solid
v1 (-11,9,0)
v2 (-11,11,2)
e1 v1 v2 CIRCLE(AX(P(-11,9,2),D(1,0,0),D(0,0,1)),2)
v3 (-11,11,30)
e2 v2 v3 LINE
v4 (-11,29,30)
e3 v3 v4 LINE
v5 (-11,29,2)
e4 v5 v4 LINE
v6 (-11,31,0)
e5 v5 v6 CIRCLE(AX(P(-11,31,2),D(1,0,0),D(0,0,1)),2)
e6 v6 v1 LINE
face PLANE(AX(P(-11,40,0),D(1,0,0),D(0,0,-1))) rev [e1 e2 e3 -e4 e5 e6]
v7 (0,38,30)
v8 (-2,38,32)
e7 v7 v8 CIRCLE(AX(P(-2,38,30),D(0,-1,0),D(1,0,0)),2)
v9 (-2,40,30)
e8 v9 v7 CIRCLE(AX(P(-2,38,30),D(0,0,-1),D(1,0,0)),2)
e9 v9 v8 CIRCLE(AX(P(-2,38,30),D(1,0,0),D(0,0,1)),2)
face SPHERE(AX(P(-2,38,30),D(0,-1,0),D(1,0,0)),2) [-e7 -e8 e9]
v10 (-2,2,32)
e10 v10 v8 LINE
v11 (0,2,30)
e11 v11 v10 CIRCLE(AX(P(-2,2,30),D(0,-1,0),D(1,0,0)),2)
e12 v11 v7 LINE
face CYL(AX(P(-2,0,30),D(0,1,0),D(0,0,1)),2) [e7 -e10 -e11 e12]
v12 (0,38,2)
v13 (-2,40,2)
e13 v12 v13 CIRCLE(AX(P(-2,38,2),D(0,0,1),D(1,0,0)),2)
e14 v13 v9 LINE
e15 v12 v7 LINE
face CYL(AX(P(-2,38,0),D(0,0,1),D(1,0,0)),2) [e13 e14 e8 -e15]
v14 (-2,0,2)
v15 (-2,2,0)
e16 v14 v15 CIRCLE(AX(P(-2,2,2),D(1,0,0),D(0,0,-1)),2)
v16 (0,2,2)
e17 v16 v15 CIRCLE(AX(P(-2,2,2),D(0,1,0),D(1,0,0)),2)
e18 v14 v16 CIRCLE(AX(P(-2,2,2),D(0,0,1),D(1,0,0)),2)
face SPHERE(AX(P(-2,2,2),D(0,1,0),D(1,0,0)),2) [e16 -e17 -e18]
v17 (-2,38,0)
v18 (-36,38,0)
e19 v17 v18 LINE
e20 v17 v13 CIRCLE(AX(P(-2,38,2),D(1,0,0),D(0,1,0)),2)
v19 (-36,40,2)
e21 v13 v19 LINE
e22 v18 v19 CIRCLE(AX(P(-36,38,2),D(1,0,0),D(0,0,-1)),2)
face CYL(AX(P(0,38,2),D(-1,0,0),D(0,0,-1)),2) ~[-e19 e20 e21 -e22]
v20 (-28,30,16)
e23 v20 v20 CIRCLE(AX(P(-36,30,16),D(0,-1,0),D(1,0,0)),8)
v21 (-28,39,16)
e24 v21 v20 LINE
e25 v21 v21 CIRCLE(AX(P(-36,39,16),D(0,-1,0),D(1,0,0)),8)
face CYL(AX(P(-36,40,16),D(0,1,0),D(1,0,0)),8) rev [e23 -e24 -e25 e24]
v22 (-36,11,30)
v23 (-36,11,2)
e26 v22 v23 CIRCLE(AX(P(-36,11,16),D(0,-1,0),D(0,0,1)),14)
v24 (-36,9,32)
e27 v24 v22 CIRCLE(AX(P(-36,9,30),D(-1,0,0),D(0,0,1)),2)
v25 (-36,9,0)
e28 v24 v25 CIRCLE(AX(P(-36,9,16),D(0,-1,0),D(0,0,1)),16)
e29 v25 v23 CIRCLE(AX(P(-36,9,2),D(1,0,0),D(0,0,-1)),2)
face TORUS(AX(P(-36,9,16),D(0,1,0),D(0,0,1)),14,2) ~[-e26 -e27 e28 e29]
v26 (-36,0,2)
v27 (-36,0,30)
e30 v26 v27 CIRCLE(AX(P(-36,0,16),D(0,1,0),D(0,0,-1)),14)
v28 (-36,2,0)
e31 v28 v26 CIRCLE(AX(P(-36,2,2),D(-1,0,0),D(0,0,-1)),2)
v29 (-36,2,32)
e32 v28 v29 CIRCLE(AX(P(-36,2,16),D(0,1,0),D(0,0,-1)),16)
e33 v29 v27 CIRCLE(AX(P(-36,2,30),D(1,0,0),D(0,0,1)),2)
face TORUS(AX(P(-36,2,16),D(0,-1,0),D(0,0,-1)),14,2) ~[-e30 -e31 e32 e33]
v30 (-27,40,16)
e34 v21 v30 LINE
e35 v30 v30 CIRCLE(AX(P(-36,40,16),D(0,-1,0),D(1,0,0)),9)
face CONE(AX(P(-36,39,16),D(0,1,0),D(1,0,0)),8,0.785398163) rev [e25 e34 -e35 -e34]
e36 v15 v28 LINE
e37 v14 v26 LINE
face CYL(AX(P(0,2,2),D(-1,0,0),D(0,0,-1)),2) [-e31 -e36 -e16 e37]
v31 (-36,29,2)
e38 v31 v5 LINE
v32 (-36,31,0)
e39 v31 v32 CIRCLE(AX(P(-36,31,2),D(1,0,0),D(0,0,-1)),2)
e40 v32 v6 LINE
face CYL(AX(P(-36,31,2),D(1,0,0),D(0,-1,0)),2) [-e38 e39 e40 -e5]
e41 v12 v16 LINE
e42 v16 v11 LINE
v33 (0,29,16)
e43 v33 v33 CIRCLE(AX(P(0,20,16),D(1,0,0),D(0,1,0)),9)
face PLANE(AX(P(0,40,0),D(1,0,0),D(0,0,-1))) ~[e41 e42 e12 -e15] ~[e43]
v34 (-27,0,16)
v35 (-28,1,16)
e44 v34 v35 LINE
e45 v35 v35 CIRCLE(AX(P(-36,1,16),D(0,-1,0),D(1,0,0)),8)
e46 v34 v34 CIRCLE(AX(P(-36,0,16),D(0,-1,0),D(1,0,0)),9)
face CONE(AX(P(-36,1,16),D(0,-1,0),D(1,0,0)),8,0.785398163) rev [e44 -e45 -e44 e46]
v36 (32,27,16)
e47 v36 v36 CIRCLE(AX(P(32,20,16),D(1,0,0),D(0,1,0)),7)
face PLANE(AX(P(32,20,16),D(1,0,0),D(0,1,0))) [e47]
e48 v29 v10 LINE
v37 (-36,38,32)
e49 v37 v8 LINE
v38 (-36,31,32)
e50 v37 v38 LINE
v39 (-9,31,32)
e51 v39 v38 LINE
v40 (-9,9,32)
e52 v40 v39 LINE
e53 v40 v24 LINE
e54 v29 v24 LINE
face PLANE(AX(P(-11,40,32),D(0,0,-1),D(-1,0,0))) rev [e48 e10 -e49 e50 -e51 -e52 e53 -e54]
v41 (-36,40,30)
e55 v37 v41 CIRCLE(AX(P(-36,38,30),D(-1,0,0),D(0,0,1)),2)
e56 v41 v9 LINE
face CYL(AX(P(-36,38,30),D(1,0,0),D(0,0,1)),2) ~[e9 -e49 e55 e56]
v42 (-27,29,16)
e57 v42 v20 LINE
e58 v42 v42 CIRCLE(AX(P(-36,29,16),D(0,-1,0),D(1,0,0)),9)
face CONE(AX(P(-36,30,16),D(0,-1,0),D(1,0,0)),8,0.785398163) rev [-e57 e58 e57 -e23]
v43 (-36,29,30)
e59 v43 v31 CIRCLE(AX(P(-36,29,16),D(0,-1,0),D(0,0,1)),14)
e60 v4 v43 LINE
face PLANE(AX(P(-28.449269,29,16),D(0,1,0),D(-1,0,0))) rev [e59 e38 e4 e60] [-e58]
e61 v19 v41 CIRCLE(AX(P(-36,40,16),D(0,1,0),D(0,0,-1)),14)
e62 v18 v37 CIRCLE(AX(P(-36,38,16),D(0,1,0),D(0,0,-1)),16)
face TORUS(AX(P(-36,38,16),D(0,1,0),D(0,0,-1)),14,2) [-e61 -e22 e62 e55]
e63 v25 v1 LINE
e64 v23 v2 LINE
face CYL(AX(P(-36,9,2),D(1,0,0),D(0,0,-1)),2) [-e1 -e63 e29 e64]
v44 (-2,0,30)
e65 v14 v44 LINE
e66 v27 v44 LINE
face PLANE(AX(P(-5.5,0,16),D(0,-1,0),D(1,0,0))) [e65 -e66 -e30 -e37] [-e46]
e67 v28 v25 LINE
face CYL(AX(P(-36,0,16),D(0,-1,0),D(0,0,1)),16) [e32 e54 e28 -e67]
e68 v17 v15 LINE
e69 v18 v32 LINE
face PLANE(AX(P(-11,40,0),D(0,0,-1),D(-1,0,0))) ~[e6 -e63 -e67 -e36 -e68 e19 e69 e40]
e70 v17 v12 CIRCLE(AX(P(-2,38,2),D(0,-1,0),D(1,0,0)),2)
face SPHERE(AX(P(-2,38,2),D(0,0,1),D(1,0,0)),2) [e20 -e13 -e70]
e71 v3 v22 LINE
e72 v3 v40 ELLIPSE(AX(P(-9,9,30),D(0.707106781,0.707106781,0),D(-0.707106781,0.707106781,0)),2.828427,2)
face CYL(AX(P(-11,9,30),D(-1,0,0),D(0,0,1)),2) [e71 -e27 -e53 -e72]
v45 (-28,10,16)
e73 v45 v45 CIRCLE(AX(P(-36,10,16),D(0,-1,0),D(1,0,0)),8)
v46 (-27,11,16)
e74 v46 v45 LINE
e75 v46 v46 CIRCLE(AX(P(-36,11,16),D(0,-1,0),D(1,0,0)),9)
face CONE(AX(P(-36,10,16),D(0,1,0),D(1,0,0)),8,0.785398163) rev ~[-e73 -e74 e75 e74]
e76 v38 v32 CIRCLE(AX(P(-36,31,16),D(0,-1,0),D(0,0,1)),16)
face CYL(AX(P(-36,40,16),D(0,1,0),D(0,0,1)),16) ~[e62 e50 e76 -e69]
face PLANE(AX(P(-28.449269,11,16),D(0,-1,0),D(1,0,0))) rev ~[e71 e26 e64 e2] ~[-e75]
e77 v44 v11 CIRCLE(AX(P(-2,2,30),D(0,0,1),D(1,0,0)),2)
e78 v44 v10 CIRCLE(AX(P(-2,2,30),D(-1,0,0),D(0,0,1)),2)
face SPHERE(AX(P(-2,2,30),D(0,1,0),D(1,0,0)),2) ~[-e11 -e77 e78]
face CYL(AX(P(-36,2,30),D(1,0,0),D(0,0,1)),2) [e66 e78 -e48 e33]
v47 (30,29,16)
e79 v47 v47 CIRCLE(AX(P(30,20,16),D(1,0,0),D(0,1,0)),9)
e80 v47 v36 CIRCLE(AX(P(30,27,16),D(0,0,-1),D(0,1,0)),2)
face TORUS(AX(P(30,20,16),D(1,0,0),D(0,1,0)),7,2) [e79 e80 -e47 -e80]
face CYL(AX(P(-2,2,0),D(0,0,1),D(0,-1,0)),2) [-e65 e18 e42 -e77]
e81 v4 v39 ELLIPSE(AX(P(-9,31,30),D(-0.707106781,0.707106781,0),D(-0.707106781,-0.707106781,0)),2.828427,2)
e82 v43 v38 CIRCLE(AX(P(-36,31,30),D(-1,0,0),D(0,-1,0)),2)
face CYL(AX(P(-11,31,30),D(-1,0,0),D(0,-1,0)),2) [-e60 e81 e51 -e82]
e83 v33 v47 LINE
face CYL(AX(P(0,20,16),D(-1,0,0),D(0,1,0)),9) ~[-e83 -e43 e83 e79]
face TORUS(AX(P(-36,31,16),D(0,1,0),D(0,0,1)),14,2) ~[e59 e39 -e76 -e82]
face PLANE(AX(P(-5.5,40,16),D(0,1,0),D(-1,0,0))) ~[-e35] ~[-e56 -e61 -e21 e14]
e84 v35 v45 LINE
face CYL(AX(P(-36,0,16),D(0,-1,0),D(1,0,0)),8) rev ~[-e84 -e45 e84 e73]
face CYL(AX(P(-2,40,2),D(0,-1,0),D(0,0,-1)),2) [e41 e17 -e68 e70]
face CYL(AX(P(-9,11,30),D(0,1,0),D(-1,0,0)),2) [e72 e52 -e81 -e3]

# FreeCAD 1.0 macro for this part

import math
import FreeCAD as App
import Part
import Sketcher

V = App.Vector
Q = App.Units.Quantity


def edges_at(feature, points):
    """Names of the edges that pass closest to the given points."""
    edges = feature.Shape.Edges
    near = lambda p: min(range(len(edges)), key=lambda i: edges[i].distToShape(Part.Vertex(*p))[0])
    return sorted({f"Edge{near(p) + 1}" for p in points})

doc = App.newDocument("Part")
params = doc.addObject("Spreadsheet::Sheet", "Params")
for row, (alias, value) in enumerate([
    ("sketch1_diameter", "16 mm"),
    ("sketch1_radius", "16 mm"),
    ("sketch1_width", "25 mm"),
    ("pad1_length", "11 mm"),
    ("sketch2_width", "11 mm"),
    ("sketch2_height", "32 mm"),
    ("pad2_length", "20 mm"),
    ("sketch3_diameter", "18 mm"),
    ("pad3_length", "32 mm"),
    ("chamfer_size", "1 mm"),
    ("fillet_radius", "2 mm"),
], start=1):
    params.set(f"A{row}", alias)
    params.set(f"B{row}", "=" + value)
    params.setAlias(f"B{row}", alias)

body = doc.addObject("PartDesign::Body", "Body")

# Sketch on XZ plane
sketch1 = body.newObject("Sketcher::SketchObject", "Sketch")
sketch1.AttachmentSupport = (doc.getObject("XZ_Plane"), [""])
sketch1.MapMode = "FlatFace"
sketch1.addGeometry([
    Part.LineSegment(V(-36, 0, 0), V(-11, 0, 0)),  # 0
    Part.LineSegment(V(-11, 0, 0), V(-11, 32, 0)),  # 1
    Part.LineSegment(V(-11, 32, 0), V(-36, 32, 0)),  # 2
    Part.ArcOfCircle(Part.Circle(V(-36, 16, 0), V(0, 0, 1), 16), math.radians(90), math.radians(270)),  # 3
    Part.Circle(V(-36, 16, 0), V(0, 0, 1), 8),  # 4
], False)
sketch1.addConstraint([
    Sketcher.Constraint("Coincident", 0, 2, 1, 1),
    Sketcher.Constraint("Coincident", 1, 2, 2, 1),
    Sketcher.Constraint("Tangent", 2, 2, 3, 1),
    Sketcher.Constraint("Tangent", 3, 2, 0, 1),
    Sketcher.Constraint("Horizontal", 0),
    Sketcher.Constraint("Vertical", 1),
    Sketcher.Constraint("Horizontal", 2),
    Sketcher.Constraint("Coincident", 4, 3, 3, 3),
    Sketcher.Constraint("PointOnObject", 0, 2, -1),
    Sketcher.Constraint("Diameter", 4, Q("16 mm")),
    Sketcher.Constraint("Radius", 3, Q("16 mm")),
    Sketcher.Constraint("DistanceX", 0, 1, 0, 2, Q("25 mm")),
    Sketcher.Constraint("DistanceX", 3, 3, -1, 1, Q("36 mm")),
])
sketch1.setExpression("Constraints[9]", "Params.sketch1_diameter")
sketch1.setExpression("Constraints[10]", "Params.sketch1_radius")
sketch1.setExpression("Constraints[11]", "Params.sketch1_width")
pad1 = body.newObject("PartDesign::Pad", "Pad")
pad1.Profile = sketch1
pad1.setExpression("Length", "Params.pad1_length")
pad1.Reversed = True

# Sketch on XZ plane
sketch2 = body.newObject("Sketcher::SketchObject", "Sketch001")
sketch2.AttachmentSupport = (doc.getObject("XZ_Plane"), [""])
sketch2.MapMode = "FlatFace"
sketch2.addGeometry([
    Part.LineSegment(V(-11, 32, 0), V(-11, 0, 0)),
    Part.LineSegment(V(-11, 0, 0), V(0, 0, 0)),
    Part.LineSegment(V(0, 0, 0), V(0, 32, 0)),
    Part.LineSegment(V(0, 32, 0), V(-11, 32, 0)),
], False)
sketch2.addConstraint([
    Sketcher.Constraint("Coincident", 0, 2, 1, 1),
    Sketcher.Constraint("Coincident", 1, 2, 2, 1),
    Sketcher.Constraint("Coincident", 2, 2, 3, 1),
    Sketcher.Constraint("Coincident", 3, 2, 0, 1),
    Sketcher.Constraint("Vertical", 0),
    Sketcher.Constraint("Horizontal", 1),
    Sketcher.Constraint("Vertical", 2),
    Sketcher.Constraint("Horizontal", 3),
    Sketcher.Constraint("Coincident", 1, 2, -1, 1),
    Sketcher.Constraint("DistanceX", 1, 1, 1, 2, Q("11 mm")),
    Sketcher.Constraint("DistanceY", 0, 2, 0, 1, Q("32 mm")),
])
sketch2.setExpression("Constraints[9]", "Params.sketch2_width")
sketch2.setExpression("Constraints[10]", "Params.sketch2_height")
pad2 = body.newObject("PartDesign::Pad", "Pad001")
pad2.Profile = sketch2
pad2.setExpression("Length", "Params.pad2_length")
pad2.Reversed = True
body2 = doc.addObject("PartDesign::Body", "Body001")
doc.recompute()

body2.BaseFeature = body
doc.recompute()

mirroring = doc.addObject("Part::Mirroring", "Mirroring")
mirroring.Source = body
mirroring.Base = V(-5.5, 20, 16)
mirroring.Normal = V(0, 1, 0)
body3 = doc.addObject("PartDesign::Body", "Body002")
body3.BaseFeature = mirroring
boolean = body2.newObject("PartDesign::Boolean", "Boolean")
boolean.Type = "Fuse"
boolean.addObjects([body3])
doc.recompute()

# Sketch on YZ plane
sketch3 = body2.newObject("Sketcher::SketchObject", "Sketch002")
sketch3.AttachmentSupport = (doc.getObject("YZ_Plane001"), [""])
sketch3.MapMode = "FlatFace"
sketch3.addGeometry(Part.Circle(V(20, 16, 0), V(0, 0, 1), 9), False)
sketch3.addConstraint([
    Sketcher.Constraint("Diameter", 0, Q("18 mm")),
    Sketcher.Constraint("DistanceX", -1, 1, 0, 3, Q("20 mm")),
    Sketcher.Constraint("DistanceY", -1, 1, 0, 3, Q("16 mm")),
])
sketch3.setExpression("Constraints[0]", "Params.sketch3_diameter")
pad3 = body2.newObject("PartDesign::Pad", "Pad002")
pad3.Profile = sketch3
pad3.setExpression("Length", "Params.pad3_length")
doc.recompute()

chamfer = body2.newObject("PartDesign::Chamfer", "Chamfer")
chamfer.Base = (pad3, edges_at(pad3, [
    (-44, 0, 16),
    (-44, 11, 16),
    (-44, 29, 16),
    (-44, 40, 16),
]))
chamfer.setExpression("Size", "Params.chamfer_size")
doc.recompute()

fillet = body2.newObject("PartDesign::Fillet", "Fillet")
fillet.Base = (chamfer, edges_at(chamfer, [
    (32, 11, 16),
    (0, 20, 32),
    (0, 40, 16),
    (0, 20, 0),
    (0, 0, 16),
    (-36, 5.5, 32),
    (-18, 0, 32),
    (-18, 40, 32),
    (-36, 34.5, 32),
    (-23.5, 29, 32),
    (-11, 20, 32),
    (-23.5, 11, 32),
]))
fillet.setExpression("Radius", "Params.fillet_radius")
mirroring.Visibility = False

doc.recompute()
